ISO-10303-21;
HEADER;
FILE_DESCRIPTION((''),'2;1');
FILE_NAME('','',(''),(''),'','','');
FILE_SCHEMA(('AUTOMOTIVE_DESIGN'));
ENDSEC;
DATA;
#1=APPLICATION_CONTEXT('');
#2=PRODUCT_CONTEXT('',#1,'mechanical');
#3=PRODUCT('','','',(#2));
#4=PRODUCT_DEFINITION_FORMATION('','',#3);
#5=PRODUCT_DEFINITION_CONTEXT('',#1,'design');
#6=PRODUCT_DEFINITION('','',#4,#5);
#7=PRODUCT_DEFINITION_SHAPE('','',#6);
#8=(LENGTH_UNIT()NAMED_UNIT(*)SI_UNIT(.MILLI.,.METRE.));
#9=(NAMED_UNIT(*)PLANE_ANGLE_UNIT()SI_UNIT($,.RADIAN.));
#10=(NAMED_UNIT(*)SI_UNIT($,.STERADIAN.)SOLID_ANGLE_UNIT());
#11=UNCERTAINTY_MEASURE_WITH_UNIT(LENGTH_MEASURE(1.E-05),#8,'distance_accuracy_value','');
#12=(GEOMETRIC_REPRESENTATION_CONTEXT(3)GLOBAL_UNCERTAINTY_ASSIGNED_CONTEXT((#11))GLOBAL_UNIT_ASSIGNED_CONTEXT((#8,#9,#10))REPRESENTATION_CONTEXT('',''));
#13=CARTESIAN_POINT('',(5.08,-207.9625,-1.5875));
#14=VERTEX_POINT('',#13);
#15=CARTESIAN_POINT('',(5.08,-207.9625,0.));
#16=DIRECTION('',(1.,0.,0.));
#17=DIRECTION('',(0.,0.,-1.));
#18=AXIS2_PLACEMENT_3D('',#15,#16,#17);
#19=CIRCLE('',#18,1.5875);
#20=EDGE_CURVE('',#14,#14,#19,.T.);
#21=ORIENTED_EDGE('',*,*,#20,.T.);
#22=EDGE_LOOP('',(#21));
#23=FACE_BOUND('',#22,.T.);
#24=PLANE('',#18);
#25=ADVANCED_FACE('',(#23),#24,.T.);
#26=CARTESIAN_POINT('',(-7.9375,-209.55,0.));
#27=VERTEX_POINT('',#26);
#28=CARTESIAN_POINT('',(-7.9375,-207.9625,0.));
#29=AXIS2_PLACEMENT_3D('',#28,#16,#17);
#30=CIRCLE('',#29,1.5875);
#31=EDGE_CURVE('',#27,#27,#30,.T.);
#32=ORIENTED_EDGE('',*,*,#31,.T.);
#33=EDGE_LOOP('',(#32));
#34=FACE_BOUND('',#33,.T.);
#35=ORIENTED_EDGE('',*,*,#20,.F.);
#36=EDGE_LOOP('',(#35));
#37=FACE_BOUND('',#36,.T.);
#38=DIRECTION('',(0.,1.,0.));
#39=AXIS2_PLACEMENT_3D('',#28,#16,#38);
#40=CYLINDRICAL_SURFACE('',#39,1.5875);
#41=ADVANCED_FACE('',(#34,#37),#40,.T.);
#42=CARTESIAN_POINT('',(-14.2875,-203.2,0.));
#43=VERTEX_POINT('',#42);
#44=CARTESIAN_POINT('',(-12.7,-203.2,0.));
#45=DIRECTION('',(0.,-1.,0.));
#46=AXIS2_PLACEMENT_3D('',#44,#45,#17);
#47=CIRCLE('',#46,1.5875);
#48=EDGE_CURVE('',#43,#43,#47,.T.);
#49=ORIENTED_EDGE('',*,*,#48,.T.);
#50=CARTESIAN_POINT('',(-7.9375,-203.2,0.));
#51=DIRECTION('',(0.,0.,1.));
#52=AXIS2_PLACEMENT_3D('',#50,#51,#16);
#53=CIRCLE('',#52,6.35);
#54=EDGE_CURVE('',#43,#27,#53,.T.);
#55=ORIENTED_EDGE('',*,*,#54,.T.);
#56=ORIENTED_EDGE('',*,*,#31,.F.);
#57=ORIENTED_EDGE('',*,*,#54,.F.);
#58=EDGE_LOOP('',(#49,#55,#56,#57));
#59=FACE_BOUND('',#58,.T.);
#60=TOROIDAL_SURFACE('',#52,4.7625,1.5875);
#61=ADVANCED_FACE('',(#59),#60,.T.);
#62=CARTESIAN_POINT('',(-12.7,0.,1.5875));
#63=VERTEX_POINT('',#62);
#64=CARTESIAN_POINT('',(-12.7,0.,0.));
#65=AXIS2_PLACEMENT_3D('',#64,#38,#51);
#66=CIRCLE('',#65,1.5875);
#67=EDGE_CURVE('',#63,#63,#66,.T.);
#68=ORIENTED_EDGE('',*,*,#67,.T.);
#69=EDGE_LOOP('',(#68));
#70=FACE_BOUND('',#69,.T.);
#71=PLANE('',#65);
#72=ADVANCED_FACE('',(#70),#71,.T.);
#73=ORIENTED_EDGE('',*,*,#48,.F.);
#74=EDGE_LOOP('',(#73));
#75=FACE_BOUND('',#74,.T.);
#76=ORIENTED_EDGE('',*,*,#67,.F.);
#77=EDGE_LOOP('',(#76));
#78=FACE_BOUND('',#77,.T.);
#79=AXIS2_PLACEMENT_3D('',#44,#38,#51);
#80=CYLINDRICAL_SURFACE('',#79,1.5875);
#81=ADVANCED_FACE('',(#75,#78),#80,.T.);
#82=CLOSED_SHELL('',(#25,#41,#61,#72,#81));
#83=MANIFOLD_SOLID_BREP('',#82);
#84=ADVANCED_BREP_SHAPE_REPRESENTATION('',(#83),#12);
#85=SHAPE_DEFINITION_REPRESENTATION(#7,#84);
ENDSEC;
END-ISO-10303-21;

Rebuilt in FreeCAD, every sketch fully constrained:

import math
import FreeCAD as App
import Part
import Sketcher

V = App.Vector
Q = App.Units.Quantity

doc = App.newDocument("Part")
body = doc.addObject("PartDesign::Body", "Body")

sketch1 = body.newObject("Sketcher::SketchObject", "Sketch")
sketch1.AttachmentSupport = (doc.getObject("XZ_Plane"), [""])
sketch1.MapMode = "FlatFace"
sketch1.addGeometry(Part.Circle(V(-12.7, 0, 0), V(0, 0, 1), 1.6), False)
sketch1.addConstraint([
    Sketcher.Constraint("PointOnObject", 0, 3, -1),
    Sketcher.Constraint("Diameter", 0, Q("0.125 in")),
    Sketcher.Constraint("DistanceX", 0, 3, -1, 1, Q("0.5 in")),
])
pad1 = body.newObject("PartDesign::Pad", "Pad")
pad1.Profile = sketch1
pad1.Length = Q("8 in")

sketch2 = body.newObject("Sketcher::SketchObject", "Sketch001")
sketch2.AttachmentSupport = (doc.getObject("YZ_Plane"), [""])
sketch2.MapMode = "FlatFace"
sketch2.AttachmentOffset = App.Placement(V(0, 0, 0.2 * 25.4), App.Rotation())
sketch2.addGeometry(Part.Circle(V(-208, 0, 0), V(0, 0, 1), 1.6), False)
sketch2.addConstraint([
    Sketcher.Constraint("PointOnObject", 0, 3, -1),
    Sketcher.Constraint("Diameter", 0, Q("0.125 in")),
    Sketcher.Constraint("DistanceX", 0, 3, -1, 1, Q("8.1875 in")),
])

sketch3 = body.newObject("Sketcher::SketchObject", "Sketch002")
sketch3.AttachmentSupport = (doc.getObject("XY_Plane"), [""])
sketch3.MapMode = "FlatFace"
sketch3.addGeometry([
    Part.LineSegment(V(5.1, -208, 0), V(-7.9, -208, 0)),
    Part.ArcOfCircle(Part.Circle(V(-7.9, -203.2, 0), V(0, 0, 1), 4.8), math.radians(-180), math.radians(-90)),
], False)
sketch3.addConstraint([
    Sketcher.Constraint("Tangent", 0, 2, 1, 2),
    Sketcher.Constraint("Horizontal", 0),
    Sketcher.Constraint("DistanceY", 1, 3, -1, 1, Q("8 in")),
    Sketcher.Constraint("DistanceY", 1, 1, -1, 1, Q("8 in")),
    Sketcher.Constraint("Radius", 1, Q("0.1875 in")),
    Sketcher.Constraint("DistanceX", -1, 1, 0, 1, Q("0.2 in")),
    Sketcher.Constraint("DistanceX", 1, 1, -1, 1, Q("0.5 in")),
])
doc.recompute()

additivepipe = body.newObject("PartDesign::AdditivePipe", "AdditivePipe")
additivepipe.Profile = sketch2
additivepipe.Spine = (sketch3, ["Edge1", "Edge2"])

doc.recompute()
